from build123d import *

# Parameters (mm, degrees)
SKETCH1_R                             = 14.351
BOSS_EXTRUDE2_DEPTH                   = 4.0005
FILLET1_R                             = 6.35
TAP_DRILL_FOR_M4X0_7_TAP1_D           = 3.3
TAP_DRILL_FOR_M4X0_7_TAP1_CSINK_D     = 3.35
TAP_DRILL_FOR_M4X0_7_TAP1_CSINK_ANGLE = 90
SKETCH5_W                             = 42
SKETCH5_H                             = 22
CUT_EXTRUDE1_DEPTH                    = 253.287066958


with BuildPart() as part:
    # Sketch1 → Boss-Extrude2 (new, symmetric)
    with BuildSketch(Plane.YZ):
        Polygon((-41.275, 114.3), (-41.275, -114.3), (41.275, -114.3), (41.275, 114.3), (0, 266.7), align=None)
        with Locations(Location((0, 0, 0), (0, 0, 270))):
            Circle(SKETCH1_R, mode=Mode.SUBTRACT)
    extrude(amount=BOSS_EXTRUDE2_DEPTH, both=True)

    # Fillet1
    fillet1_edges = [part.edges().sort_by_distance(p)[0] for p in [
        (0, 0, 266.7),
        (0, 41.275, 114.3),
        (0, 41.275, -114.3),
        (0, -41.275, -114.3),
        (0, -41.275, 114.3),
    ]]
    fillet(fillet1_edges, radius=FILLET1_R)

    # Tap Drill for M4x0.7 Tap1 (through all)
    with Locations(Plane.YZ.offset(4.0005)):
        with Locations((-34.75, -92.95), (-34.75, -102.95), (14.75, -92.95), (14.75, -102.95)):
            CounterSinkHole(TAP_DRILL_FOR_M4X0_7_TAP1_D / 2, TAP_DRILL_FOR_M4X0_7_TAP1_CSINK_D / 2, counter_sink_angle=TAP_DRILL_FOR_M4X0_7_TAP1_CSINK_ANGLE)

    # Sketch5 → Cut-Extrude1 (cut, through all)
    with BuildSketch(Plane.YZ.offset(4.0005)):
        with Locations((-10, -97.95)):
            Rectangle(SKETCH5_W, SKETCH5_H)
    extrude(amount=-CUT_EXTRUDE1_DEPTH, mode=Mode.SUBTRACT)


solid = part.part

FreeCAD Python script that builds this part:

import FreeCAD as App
import Part
import Sketcher
Q = App.Units.Quantity


def edges_at(feature, points):
    """Names of the edges that pass closest to the given points."""
    edges = feature.Shape.Edges
    near = lambda p: min(range(len(edges)), key=lambda i: edges[i].distToShape(Part.Vertex(*p))[0])
    return sorted({f"Edge{near(p) + 1}" for p in points})

doc = App.newDocument("Part")
body = doc.addObject("PartDesign::Body", "Body")

# Sketch on YZ plane
sketch1 = body.newObject("Sketcher::SketchObject", "Sketch")
sketch1.AttachmentSupport = (doc.getObject("YZ_Plane"), [""])
sketch1.MapMode = "FlatFace"
sketch1.addGeometry([
    Part.LineSegment(App.Vector(-41, 114, 0), App.Vector(-41, -114, 0)),  # 0
    Part.LineSegment(App.Vector(-41, -114, 0), App.Vector(41, -114, 0)),  # 1
    Part.LineSegment(App.Vector(41, -114, 0), App.Vector(41, 114, 0)),  # 2
    Part.LineSegment(App.Vector(41, 114, 0), App.Vector(0, 267, 0)),  # 3
    Part.LineSegment(App.Vector(0, 267, 0), App.Vector(-41, 114, 0)),  # 4
    Part.Circle(App.Vector(0, 0, 0), App.Vector(0, 0, 1), 14),  # 5
], False)
sketch1.addConstraint([
    Sketcher.Constraint("Coincident", 0, 2, 1, 1),
    Sketcher.Constraint("Coincident", 1, 2, 2, 1),
    Sketcher.Constraint("Coincident", 2, 2, 3, 1),
    Sketcher.Constraint("Coincident", 3, 2, 4, 1),
    Sketcher.Constraint("Coincident", 4, 2, 0, 1),
    Sketcher.Constraint("Vertical", 0),
    Sketcher.Constraint("Horizontal", 1),
    Sketcher.Constraint("Vertical", 2),
    Sketcher.Constraint("Coincident", 5, 3, -1, 1),
    Sketcher.Constraint("Symmetric", 0, 2, 2, 2, -1, 1),
    Sketcher.Constraint("PointOnObject", 3, 2, -2),
    Sketcher.Constraint("Horizontal", 2, 2, 4, 2),
    Sketcher.Constraint("Diameter", 5, Q("1.13 in")),
    Sketcher.Constraint("DistanceY", 0, 2, 0, 1, Q("9 in")),
    Sketcher.Constraint("DistanceY", 2, 2, 3, 2, Q("6 in")),
    Sketcher.Constraint("DistanceX", 1, 1, 1, 2, Q("3.25 in")),
])
pad1 = body.newObject("PartDesign::Pad", "Pad")
pad1.Profile = sketch1
pad1.Length = Q("0.315 in")
pad1.Midplane = True
doc.recompute()

fillet = body.newObject("PartDesign::Fillet", "Fillet")
fillet.Base = (pad1, edges_at(pad1, [
    (0, 0, 266.7),
    (0, 41.275, 114.3),
    (0, 41.275, -114.3),
    (0, -41.275, -114.3),
    (0, -41.275, 114.3),
]))
fillet.Radius = Q("0.25 in")

# Sketch on YZ plane
sketch2 = body.newObject("Sketcher::SketchObject", "Sketch001")
sketch2.AttachmentSupport = (doc.getObject("YZ_Plane"), [""])
sketch2.MapMode = "FlatFace"
sketch2.AttachmentOffset = App.Placement(App.Vector(0, 0, 0.1575 * 25.4), App.Rotation())
sketch2.addGeometry([
    Part.Circle(App.Vector(-34.8, -93, 0), App.Vector(0, 0, 1), 1.6),
    Part.Circle(App.Vector(-34.8, -103, 0), App.Vector(0, 0, 1), 1.6),
    Part.Circle(App.Vector(14.8, -93, 0), App.Vector(0, 0, 1), 1.6),
    Part.Circle(App.Vector(14.8, -103, 0), App.Vector(0, 0, 1), 1.6),
], False)
sketch2.addConstraint([
    Sketcher.Constraint("Equal", 0, 1),
    Sketcher.Constraint("Equal", 1, 2),
    Sketcher.Constraint("Equal", 2, 3),
    Sketcher.Constraint("Horizontal", 0, 3, 2, 3),
    Sketcher.Constraint("Horizontal", 1, 3, 3, 3),
    Sketcher.Constraint("Vertical", 0, 3, 1, 3),
    Sketcher.Constraint("Vertical", 2, 3, 3, 3),
    Sketcher.Constraint("Diameter", 0, Q("3.3 mm")),
    Sketcher.Constraint("DistanceX", 0, 3, -1, 1, Q("34.75 mm")),
    Sketcher.Constraint("DistanceY", 0, 3, -1, 1, Q("92.95 mm")),
    Sketcher.Constraint("DistanceY", 1, 3, -1, 1, Q("102.95 mm")),
    Sketcher.Constraint("DistanceX", -1, 1, 2, 3, Q("14.75 mm")),
])
doc.recompute()
hole = body.newObject("PartDesign::Hole", "Hole")
hole.Profile = sketch2
hole.ThreadType = "None"
hole.Diameter = 3.3
hole.DepthType = "ThroughAll"
hole.HoleCutType = "Countersink"
hole.HoleCutDiameter = 3.35
hole.HoleCutCountersinkAngle = 90

# Sketch on YZ plane
sketch3 = body.newObject("Sketcher::SketchObject", "Sketch002")
sketch3.AttachmentSupport = (doc.getObject("YZ_Plane"), [""])
sketch3.MapMode = "FlatFace"
sketch3.AttachmentOffset = App.Placement(App.Vector(0, 0, 0.1575 * 25.4), App.Rotation())
sketch3.addGeometry([
    Part.LineSegment(App.Vector(-31, -87, 0), App.Vector(-31, -109, 0)),
    Part.LineSegment(App.Vector(-31, -109, 0), App.Vector(11, -109, 0)),
    Part.LineSegment(App.Vector(11, -109, 0), App.Vector(11, -87, 0)),
    Part.LineSegment(App.Vector(11, -87, 0), App.Vector(-31, -87, 0)),
], False)
sketch3.addConstraint([
    Sketcher.Constraint("Coincident", 0, 2, 1, 1),
    Sketcher.Constraint("Coincident", 1, 2, 2, 1),
    Sketcher.Constraint("Coincident", 2, 2, 3, 1),
    Sketcher.Constraint("Coincident", 3, 2, 0, 1),
    Sketcher.Constraint("Vertical", 0),
    Sketcher.Constraint("Horizontal", 1),
    Sketcher.Constraint("Vertical", 2),
    Sketcher.Constraint("Horizontal", 3),
    Sketcher.Constraint("DistanceX", 1, 1, 1, 2, Q("42 mm")),
    Sketcher.Constraint("DistanceY", 0, 2, 0, 1, Q("22 mm")),
    Sketcher.Constraint("DistanceX", 0, 2, -1, 1, Q("31 mm")),
    Sketcher.Constraint("DistanceY", 0, 2, -1, 1, Q("108.95 mm")),
])
pocket1 = body.newObject("PartDesign::Pocket", "Pocket")
pocket1.Profile = sketch3
pocket1.Type = "ThroughAll"

doc.recompute()
